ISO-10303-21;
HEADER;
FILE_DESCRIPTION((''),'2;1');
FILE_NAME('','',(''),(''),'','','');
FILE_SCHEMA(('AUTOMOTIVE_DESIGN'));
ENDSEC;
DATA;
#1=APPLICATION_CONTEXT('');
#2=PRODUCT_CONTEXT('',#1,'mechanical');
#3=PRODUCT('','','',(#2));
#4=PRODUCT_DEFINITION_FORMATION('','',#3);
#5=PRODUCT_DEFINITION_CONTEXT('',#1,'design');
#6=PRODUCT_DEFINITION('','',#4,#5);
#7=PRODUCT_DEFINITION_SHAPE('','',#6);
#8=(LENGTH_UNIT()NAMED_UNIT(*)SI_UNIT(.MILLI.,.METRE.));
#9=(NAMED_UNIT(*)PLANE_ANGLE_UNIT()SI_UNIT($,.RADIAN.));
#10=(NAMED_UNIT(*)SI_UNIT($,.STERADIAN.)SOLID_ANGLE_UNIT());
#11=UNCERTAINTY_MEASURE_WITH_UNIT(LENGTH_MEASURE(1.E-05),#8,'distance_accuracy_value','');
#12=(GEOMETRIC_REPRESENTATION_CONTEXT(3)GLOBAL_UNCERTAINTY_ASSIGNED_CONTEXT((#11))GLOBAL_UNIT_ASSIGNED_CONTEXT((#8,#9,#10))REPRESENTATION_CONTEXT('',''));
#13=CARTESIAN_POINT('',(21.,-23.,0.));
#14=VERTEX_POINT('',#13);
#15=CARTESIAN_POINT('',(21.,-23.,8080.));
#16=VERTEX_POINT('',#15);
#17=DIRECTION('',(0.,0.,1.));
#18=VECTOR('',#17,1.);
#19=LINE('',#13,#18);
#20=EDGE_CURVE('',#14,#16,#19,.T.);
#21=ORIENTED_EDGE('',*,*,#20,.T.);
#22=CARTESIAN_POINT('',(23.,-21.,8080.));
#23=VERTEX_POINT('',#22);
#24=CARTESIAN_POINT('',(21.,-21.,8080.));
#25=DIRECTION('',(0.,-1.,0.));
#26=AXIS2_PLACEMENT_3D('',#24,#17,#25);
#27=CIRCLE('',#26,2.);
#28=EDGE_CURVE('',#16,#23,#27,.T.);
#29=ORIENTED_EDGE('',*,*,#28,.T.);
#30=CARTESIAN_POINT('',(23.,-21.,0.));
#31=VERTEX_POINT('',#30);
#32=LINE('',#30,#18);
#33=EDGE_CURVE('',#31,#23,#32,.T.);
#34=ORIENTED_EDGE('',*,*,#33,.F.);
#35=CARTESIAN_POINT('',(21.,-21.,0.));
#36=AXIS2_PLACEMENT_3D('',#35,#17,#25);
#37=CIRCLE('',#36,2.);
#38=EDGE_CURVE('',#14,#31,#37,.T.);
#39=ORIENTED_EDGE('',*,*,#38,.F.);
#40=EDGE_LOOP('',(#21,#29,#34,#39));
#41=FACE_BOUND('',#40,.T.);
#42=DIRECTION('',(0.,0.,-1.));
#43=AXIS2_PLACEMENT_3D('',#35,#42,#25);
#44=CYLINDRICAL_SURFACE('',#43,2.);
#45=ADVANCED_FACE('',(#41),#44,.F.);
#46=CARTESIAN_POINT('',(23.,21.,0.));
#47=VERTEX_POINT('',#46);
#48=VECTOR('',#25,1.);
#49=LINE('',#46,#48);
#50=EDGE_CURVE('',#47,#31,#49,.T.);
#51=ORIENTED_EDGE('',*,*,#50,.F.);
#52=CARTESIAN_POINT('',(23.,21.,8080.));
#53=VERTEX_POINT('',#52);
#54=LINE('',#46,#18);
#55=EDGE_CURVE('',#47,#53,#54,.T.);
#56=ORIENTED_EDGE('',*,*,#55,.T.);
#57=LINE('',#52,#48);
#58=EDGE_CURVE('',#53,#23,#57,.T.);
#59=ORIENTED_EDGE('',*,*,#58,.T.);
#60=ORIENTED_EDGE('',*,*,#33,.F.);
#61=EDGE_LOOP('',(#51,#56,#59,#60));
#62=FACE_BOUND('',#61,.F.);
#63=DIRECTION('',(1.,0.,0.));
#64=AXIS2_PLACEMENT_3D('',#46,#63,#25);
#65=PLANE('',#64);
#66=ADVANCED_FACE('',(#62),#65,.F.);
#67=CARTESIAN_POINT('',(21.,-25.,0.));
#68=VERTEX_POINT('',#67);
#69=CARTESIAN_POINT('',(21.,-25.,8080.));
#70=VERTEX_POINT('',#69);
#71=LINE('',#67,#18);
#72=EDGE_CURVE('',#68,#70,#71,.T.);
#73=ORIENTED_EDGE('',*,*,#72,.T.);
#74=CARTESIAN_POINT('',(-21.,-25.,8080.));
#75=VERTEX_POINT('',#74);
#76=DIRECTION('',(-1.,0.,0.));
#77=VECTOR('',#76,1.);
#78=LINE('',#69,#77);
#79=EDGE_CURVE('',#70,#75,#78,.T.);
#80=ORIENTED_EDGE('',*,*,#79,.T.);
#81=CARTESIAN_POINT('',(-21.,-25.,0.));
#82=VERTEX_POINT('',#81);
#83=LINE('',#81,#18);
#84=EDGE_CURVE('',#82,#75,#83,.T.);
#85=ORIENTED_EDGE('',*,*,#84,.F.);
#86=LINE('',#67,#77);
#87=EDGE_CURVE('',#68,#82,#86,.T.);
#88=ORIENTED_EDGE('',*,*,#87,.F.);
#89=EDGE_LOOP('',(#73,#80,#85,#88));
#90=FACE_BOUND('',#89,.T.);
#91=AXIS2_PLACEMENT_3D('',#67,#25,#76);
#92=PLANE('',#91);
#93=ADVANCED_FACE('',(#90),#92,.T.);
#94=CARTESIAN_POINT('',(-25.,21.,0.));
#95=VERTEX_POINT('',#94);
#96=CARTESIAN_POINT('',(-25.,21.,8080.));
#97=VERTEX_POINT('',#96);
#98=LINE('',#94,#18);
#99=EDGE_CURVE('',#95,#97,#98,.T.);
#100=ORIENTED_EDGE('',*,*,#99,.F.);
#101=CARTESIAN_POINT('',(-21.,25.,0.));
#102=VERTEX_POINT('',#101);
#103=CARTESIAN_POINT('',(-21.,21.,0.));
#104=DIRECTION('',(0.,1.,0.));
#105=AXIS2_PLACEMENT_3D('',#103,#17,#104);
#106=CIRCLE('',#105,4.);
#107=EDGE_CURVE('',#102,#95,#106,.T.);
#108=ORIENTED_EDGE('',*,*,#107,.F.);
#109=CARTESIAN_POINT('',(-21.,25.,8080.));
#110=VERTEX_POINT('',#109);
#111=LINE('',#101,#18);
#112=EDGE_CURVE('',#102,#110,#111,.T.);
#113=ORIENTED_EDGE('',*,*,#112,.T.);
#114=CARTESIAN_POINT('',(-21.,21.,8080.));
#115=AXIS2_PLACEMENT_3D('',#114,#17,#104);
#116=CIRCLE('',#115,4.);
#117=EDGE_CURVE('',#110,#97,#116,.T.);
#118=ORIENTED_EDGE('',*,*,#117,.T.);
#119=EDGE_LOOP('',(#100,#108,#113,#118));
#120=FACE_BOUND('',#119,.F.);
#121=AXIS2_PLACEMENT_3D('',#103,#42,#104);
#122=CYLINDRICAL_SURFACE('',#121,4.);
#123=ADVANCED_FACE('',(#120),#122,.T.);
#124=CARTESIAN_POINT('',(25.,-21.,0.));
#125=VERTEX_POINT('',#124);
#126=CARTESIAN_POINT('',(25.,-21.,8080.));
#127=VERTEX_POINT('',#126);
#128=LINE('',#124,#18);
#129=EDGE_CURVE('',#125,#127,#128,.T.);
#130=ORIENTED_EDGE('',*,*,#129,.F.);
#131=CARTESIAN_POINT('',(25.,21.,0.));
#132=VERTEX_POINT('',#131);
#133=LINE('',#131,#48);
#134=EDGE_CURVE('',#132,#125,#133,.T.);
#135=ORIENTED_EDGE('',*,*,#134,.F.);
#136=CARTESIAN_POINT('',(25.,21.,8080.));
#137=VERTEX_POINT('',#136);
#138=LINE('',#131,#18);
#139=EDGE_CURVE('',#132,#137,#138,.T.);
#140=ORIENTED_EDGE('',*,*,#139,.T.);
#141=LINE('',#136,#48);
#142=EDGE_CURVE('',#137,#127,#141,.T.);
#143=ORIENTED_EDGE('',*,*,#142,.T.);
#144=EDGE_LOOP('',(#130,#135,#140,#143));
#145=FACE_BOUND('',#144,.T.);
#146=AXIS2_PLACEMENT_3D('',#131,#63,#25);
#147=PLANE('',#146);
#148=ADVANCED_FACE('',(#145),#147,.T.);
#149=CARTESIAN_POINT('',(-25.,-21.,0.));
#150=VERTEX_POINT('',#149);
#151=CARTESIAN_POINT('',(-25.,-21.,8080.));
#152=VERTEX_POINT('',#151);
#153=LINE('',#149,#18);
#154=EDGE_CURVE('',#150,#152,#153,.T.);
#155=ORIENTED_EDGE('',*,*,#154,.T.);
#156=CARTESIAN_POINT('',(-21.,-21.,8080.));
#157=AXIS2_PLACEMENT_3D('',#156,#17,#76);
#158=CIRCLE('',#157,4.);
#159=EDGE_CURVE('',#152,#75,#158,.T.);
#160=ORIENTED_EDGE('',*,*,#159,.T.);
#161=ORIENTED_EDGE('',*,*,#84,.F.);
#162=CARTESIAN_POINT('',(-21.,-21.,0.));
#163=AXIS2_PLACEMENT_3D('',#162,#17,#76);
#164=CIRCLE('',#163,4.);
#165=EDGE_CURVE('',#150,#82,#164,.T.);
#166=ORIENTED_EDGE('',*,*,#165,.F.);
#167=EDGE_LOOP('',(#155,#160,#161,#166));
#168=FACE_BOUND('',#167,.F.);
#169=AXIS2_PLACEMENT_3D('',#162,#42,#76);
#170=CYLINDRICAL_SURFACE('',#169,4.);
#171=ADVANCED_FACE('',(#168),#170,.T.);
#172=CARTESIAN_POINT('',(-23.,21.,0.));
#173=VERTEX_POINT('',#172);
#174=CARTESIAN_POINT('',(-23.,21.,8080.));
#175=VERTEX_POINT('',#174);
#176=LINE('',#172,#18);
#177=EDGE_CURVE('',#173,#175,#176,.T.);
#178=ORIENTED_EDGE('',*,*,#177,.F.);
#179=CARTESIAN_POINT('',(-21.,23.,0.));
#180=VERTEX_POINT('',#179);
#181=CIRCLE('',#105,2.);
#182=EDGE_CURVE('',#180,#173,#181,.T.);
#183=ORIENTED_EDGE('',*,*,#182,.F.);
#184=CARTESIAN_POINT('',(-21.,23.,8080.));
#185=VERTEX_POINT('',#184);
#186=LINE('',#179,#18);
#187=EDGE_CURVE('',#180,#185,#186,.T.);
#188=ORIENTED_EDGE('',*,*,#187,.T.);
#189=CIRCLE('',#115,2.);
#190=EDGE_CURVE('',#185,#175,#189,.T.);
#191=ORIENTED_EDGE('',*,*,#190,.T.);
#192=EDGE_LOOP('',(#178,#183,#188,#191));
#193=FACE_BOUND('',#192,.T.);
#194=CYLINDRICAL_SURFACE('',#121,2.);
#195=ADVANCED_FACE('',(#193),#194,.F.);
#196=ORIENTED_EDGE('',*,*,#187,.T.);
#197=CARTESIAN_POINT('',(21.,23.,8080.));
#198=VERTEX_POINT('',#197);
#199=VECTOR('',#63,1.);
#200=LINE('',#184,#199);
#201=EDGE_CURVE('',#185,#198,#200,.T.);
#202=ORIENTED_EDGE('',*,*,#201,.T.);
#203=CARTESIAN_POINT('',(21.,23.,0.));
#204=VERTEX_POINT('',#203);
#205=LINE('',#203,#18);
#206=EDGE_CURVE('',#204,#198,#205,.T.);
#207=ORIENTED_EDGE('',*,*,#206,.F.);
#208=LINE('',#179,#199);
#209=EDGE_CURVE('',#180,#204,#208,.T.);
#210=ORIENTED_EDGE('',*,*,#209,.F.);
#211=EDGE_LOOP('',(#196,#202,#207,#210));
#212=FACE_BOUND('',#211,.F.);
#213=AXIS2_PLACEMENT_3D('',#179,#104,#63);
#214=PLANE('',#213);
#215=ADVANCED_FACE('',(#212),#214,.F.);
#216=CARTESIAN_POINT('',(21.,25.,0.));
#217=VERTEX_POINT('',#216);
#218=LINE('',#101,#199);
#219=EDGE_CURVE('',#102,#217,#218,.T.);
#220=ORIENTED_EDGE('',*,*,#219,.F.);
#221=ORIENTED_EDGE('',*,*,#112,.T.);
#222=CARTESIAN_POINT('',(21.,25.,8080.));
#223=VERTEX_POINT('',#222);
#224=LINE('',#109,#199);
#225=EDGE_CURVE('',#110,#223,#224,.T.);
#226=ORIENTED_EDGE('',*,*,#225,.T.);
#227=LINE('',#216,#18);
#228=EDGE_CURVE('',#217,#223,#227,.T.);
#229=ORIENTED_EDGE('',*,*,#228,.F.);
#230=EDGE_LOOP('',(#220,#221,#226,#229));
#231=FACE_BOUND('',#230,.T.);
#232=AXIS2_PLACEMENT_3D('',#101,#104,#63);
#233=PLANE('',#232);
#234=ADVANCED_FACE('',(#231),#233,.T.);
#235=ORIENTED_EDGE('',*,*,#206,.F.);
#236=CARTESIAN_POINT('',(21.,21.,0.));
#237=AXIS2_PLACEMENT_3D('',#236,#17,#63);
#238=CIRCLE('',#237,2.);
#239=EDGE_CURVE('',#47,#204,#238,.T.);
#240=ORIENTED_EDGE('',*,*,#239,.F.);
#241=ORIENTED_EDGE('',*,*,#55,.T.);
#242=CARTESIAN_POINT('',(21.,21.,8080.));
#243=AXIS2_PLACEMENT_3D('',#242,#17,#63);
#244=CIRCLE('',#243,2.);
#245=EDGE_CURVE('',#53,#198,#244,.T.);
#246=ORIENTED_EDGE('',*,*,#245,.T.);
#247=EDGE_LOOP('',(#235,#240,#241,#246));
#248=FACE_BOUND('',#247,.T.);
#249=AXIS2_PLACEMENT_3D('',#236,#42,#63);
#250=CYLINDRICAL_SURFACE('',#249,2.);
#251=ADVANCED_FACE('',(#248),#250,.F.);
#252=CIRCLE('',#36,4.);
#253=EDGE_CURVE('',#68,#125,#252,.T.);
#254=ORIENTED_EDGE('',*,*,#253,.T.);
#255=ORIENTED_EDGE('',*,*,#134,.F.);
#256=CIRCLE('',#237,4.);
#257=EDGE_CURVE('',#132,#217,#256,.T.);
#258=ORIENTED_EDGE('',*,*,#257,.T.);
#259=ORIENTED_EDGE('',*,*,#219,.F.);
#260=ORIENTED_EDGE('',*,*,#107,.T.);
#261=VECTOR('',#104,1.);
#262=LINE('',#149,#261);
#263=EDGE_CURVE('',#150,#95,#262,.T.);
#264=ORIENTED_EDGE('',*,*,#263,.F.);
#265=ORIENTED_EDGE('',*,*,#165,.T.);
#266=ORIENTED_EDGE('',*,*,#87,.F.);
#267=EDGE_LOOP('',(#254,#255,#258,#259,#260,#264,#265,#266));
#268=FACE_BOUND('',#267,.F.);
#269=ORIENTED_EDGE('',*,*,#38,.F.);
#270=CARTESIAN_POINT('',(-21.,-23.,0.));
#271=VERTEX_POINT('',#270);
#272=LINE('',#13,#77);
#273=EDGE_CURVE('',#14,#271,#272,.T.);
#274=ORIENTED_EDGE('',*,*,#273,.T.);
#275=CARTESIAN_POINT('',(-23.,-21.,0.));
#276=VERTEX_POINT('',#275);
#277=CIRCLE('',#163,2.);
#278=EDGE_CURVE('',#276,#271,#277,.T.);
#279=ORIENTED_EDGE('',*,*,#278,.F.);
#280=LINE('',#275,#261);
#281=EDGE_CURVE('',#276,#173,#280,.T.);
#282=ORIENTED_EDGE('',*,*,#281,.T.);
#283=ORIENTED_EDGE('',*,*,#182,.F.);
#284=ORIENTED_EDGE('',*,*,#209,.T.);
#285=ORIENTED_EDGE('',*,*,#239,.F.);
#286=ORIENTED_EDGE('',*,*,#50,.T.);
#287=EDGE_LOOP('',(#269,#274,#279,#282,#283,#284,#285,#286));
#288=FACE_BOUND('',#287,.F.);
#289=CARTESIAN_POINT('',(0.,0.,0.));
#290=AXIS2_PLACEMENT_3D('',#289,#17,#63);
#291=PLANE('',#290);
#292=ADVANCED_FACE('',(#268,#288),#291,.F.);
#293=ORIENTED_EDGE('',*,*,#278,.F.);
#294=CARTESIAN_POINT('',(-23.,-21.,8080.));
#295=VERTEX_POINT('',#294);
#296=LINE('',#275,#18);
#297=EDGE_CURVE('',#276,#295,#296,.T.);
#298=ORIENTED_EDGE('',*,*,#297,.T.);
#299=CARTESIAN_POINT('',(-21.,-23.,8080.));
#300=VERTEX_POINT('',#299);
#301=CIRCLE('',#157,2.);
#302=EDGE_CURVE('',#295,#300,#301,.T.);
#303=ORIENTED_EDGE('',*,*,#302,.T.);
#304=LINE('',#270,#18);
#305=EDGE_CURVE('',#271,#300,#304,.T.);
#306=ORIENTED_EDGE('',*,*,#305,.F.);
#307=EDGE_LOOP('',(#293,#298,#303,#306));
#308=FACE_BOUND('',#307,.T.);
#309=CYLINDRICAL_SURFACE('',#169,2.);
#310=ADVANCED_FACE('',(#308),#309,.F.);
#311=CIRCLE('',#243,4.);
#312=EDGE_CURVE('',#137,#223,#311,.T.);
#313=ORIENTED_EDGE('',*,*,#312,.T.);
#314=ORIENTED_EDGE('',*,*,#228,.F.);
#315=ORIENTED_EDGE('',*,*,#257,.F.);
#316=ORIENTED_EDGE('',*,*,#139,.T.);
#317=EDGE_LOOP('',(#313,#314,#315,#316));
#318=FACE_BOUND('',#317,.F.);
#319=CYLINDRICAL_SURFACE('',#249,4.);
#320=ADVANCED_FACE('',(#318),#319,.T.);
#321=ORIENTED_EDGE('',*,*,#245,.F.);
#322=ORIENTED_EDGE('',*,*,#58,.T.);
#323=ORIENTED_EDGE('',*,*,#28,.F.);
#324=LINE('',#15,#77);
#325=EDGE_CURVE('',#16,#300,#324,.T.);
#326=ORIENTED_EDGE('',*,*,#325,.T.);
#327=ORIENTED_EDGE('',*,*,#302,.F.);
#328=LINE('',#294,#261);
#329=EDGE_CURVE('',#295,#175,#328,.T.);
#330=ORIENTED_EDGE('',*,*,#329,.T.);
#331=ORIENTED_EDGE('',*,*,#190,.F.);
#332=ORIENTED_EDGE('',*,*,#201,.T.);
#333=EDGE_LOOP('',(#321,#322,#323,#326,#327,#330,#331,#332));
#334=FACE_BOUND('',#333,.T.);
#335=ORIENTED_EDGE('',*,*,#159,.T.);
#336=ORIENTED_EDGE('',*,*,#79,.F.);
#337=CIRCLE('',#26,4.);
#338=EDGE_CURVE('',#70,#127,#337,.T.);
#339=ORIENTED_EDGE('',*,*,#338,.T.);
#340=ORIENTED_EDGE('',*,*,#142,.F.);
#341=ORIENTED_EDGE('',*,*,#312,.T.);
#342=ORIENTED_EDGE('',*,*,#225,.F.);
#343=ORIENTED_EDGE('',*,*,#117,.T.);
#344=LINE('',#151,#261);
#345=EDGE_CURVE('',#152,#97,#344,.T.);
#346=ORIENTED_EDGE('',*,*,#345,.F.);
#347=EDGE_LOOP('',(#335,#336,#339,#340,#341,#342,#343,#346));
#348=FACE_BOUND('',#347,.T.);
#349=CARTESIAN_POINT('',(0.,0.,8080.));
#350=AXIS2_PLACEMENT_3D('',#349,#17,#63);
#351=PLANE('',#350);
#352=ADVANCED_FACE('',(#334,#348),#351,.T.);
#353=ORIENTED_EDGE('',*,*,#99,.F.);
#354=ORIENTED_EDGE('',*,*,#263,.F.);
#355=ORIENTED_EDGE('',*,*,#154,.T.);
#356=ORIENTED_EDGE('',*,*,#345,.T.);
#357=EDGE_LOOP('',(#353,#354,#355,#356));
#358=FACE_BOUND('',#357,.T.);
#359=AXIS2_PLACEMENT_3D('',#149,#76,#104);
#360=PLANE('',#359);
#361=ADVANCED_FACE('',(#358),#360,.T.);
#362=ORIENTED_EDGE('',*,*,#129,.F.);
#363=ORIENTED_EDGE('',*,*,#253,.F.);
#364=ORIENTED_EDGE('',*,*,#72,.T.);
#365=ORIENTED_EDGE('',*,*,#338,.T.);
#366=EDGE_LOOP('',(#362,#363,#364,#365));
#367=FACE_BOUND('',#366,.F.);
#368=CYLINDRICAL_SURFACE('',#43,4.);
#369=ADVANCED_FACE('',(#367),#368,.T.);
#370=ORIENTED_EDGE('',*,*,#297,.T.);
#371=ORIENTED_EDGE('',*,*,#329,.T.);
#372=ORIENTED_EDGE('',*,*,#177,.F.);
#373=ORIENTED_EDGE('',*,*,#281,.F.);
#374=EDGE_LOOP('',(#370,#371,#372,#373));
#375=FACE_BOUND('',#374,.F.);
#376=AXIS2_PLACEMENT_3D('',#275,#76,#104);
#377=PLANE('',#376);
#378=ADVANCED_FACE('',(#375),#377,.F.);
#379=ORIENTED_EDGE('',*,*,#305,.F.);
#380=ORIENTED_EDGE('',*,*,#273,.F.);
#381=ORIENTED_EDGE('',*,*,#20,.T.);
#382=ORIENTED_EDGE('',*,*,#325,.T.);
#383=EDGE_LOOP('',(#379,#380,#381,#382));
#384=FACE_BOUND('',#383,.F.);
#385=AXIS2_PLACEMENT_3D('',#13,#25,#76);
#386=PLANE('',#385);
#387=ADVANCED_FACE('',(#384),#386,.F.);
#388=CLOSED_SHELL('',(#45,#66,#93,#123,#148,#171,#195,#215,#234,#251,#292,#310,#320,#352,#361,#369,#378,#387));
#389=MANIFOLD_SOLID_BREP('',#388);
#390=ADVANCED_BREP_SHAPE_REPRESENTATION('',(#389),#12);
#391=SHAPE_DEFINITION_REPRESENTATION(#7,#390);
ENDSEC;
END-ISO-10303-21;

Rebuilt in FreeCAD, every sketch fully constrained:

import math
import FreeCAD as App
import Part
import Sketcher
from FreeCAD import Vector

doc = App.newDocument("Part")
body = doc.addObject("PartDesign::Body", "Body")

# Sketch on XY plane
sketch1 = body.newObject("Sketcher::SketchObject", "Sketch")
sketch1.AttachmentSupport = (doc.getObject("XY_Plane"), [""])
sketch1.MapMode = "FlatFace"
sketch1.addGeometry([
    Part.LineSegment(Vector(-25, 21, 0), Vector(-25, -21, 0)),  # 0
    Part.ArcOfCircle(Part.Circle(Vector(-21, -21, 0), Vector(0, 0, 1), 4), math.radians(180), math.radians(270)),  # 1
    Part.LineSegment(Vector(-21, -25, 0), Vector(21, -25, 0)),  # 2
    Part.ArcOfCircle(Part.Circle(Vector(21, -21, 0), Vector(0, 0, 1), 4), math.radians(-90), math.radians(0)),  # 3
    Part.LineSegment(Vector(25, -21, 0), Vector(25, 21, 0)),  # 4
    Part.ArcOfCircle(Part.Circle(Vector(21, 21, 0), Vector(0, 0, 1), 4), math.radians(0), math.radians(90)),  # 5
    Part.LineSegment(Vector(21, 25, 0), Vector(-21, 25, 0)),  # 6
    Part.ArcOfCircle(Part.Circle(Vector(-21, 21, 0), Vector(0, 0, 1), 4), math.radians(90), math.radians(180)),  # 7
    Part.ArcOfCircle(Part.Circle(Vector(-21, 21, 0), Vector(0, 0, 1), 2), math.radians(90), math.radians(180)),  # 8
    Part.LineSegment(Vector(-21, 23, 0), Vector(21, 23, 0)),  # 9
    Part.ArcOfCircle(Part.Circle(Vector(21, 21, 0), Vector(0, 0, 1), 2), math.radians(0), math.radians(90)),  # 10
    Part.LineSegment(Vector(23, 21, 0), Vector(23, -21, 0)),  # 11
    Part.ArcOfCircle(Part.Circle(Vector(21, -21, 0), Vector(0, 0, 1), 2), math.radians(-90), math.radians(0)),  # 12
    Part.LineSegment(Vector(21, -23, 0), Vector(-21, -23, 0)),  # 13
    Part.ArcOfCircle(Part.Circle(Vector(-21, -21, 0), Vector(0, 0, 1), 2), math.radians(180), math.radians(270)),  # 14
    Part.LineSegment(Vector(-23, -21, 0), Vector(-23, 21, 0)),  # 15
], False)
sketch1.addConstraint([
    Sketcher.Constraint("Tangent", 0, 2, 1, 1),
    Sketcher.Constraint("Tangent", 1, 2, 2, 1),
    Sketcher.Constraint("Tangent", 2, 2, 3, 1),
    Sketcher.Constraint("Tangent", 3, 2, 4, 1),
    Sketcher.Constraint("Tangent", 4, 2, 5, 1),
    Sketcher.Constraint("Tangent", 5, 2, 6, 1),
    Sketcher.Constraint("Tangent", 6, 2, 7, 1),
    Sketcher.Constraint("Tangent", 7, 2, 0, 1),
    Sketcher.Constraint("Tangent", 8, 1, 9, 1),
    Sketcher.Constraint("Tangent", 9, 2, 10, 2),
    Sketcher.Constraint("Tangent", 10, 1, 11, 1),
    Sketcher.Constraint("Tangent", 11, 2, 12, 2),
    Sketcher.Constraint("Tangent", 12, 1, 13, 1),
    Sketcher.Constraint("Tangent", 13, 2, 14, 2),
    Sketcher.Constraint("Tangent", 14, 1, 15, 1),
    Sketcher.Constraint("Tangent", 15, 2, 8, 2),
    Sketcher.Constraint("Vertical", 0),
    Sketcher.Constraint("Horizontal", 2),
    Sketcher.Constraint("Vertical", 4),
    Sketcher.Constraint("Horizontal", 6),
    Sketcher.Constraint("Horizontal", 9),
    Sketcher.Constraint("Vertical", 11),
    Sketcher.Constraint("Horizontal", 13),
    Sketcher.Constraint("Vertical", 15),
    Sketcher.Constraint("Coincident", 8, 3, 7, 3),
    Sketcher.Constraint("Coincident", 10, 3, 5, 3),
    Sketcher.Constraint("Coincident", 12, 3, 3, 3),
    Sketcher.Constraint("Equal", 1, 3),
    Sketcher.Constraint("Equal", 3, 5),
    Sketcher.Constraint("Equal", 5, 7),
    Sketcher.Constraint("Equal", 12, 14),
    Sketcher.Constraint("Symmetric", 1, 3, 5, 3, -1, 1),
    Sketcher.Constraint("Equal", 13, 0),
    Sketcher.Constraint("Radius", 1, 4.0),
    Sketcher.Constraint("Radius", 8, 2.0),
    Sketcher.Constraint("DistanceX", 0, 2, -1, 1, 25.0),
])
pad1 = body.newObject("PartDesign::Pad", "Pad")
pad1.Profile = sketch1
pad1.Length = 8080

doc.recompute()
